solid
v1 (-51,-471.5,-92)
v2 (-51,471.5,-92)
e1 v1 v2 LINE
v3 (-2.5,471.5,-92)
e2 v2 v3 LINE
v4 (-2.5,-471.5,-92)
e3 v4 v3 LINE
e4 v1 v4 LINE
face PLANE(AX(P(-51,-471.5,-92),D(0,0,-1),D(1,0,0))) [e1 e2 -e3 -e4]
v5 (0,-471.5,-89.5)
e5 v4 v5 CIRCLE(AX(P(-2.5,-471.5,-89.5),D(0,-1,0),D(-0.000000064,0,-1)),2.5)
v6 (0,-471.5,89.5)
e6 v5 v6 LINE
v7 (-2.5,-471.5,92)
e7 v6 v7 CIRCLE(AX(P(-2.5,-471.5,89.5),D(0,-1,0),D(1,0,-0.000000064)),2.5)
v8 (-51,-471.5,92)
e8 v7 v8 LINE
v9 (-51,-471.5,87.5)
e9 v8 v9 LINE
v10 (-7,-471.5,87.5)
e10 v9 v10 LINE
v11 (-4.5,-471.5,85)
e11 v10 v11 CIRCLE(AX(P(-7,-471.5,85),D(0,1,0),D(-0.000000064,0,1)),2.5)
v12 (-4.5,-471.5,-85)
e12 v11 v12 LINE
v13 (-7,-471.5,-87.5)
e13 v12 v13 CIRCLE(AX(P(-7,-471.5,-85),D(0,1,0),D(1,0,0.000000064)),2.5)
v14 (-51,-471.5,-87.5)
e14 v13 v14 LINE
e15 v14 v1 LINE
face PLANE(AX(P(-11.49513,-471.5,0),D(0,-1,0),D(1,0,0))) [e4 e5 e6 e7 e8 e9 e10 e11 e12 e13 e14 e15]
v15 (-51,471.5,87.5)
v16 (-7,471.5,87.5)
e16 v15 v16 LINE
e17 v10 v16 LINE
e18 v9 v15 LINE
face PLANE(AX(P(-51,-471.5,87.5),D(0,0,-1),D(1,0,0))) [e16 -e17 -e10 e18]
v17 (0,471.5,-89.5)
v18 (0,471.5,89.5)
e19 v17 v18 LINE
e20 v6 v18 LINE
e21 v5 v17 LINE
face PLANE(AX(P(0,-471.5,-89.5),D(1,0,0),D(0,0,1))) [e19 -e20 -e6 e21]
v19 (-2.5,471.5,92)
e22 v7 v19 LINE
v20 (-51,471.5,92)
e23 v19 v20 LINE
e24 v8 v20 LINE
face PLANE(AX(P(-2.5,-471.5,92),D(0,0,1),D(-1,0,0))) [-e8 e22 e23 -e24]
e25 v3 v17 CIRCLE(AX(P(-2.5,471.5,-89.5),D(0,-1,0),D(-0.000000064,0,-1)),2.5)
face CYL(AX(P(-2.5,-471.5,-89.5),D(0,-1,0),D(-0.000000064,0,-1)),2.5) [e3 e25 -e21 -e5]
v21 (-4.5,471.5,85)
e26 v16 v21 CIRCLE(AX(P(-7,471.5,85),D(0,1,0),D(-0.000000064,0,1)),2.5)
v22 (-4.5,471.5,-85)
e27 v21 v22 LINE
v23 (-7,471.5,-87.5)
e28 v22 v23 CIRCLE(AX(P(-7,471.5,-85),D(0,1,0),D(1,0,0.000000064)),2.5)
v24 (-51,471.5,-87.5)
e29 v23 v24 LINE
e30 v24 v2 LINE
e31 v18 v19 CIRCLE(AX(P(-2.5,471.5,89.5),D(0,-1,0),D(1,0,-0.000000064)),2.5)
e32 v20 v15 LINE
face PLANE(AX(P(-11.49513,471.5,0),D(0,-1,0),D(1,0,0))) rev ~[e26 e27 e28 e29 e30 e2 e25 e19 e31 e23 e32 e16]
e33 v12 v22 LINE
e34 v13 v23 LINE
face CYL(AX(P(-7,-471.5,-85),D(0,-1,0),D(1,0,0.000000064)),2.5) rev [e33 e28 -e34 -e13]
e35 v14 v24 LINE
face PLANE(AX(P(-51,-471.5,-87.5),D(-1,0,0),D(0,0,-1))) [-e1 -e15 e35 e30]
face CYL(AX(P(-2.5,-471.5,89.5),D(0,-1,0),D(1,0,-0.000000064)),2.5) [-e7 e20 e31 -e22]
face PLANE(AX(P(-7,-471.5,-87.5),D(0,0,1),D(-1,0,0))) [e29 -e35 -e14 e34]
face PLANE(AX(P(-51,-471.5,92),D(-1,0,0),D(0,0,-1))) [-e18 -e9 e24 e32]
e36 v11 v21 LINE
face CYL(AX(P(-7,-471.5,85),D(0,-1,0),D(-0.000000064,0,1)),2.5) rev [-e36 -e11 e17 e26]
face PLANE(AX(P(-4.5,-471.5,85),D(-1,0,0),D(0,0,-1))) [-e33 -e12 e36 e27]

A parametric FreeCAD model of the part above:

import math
import FreeCAD as App
import Part
import Sketcher
from FreeCAD import Vector

doc = App.newDocument("Part")
body = doc.addObject("PartDesign::Body", "Body")

# Sketch on XZ plane
sketch1 = body.newObject("Sketcher::SketchObject", "Sketch")
sketch1.AttachmentSupport = (doc.getObject("XZ_Plane"), [""])
sketch1.MapMode = "FlatFace"
sketch1.AttachmentOffset = App.Placement(Vector(0, 0, 471.5), App.Rotation())
sketch1.addGeometry([
    Part.ArcOfCircle(Part.Circle(Vector(-2.5, -89.5, 0), Vector(0, 0, 1), 2.5), math.radians(-90.000004), math.radians(0.000004)),  # 0
    Part.LineSegment(Vector(0, -89.5, 0), Vector(0, 89.5, 0)),  # 1
    Part.ArcOfCircle(Part.Circle(Vector(-2.5, 89.5, 0), Vector(0, 0, 1), 2.5), math.radians(-0.000004), math.radians(90.000004)),  # 2
    Part.LineSegment(Vector(-2.5, 92, 0), Vector(-51, 92, 0)),  # 3
    Part.LineSegment(Vector(-51, 92, 0), Vector(-51, 87.5, 0)),  # 4
    Part.LineSegment(Vector(-51, 87.5, 0), Vector(-7, 87.5, 0)),  # 5
    Part.ArcOfCircle(Part.Circle(Vector(-7, 85, 0), Vector(0, 0, 1), 2.5), math.radians(-0.000004), math.radians(90.000004)),  # 6
    Part.LineSegment(Vector(-4.5, 85, 0), Vector(-4.5, -85, 0)),  # 7
    Part.ArcOfCircle(Part.Circle(Vector(-7, -85, 0), Vector(0, 0, 1), 2.5), math.radians(-90.000004), math.radians(0.000004)),  # 8
    Part.LineSegment(Vector(-7, -87.5, 0), Vector(-51, -87.5, 0)),  # 9
    Part.LineSegment(Vector(-51, -87.5, 0), Vector(-51, -92, 0)),  # 10
    Part.LineSegment(Vector(-51, -92, 0), Vector(-2.5, -92, 0)),  # 11
], False)
sketch1.addConstraint([
    Sketcher.Constraint("Tangent", 0, 2, 1, 1),
    Sketcher.Constraint("Tangent", 1, 2, 2, 1),
    Sketcher.Constraint("Tangent", 2, 2, 3, 1),
    Sketcher.Constraint("Coincident", 3, 2, 4, 1),
    Sketcher.Constraint("Coincident", 4, 2, 5, 1),
    Sketcher.Constraint("Tangent", 5, 2, 6, 2),
    Sketcher.Constraint("Tangent", 6, 1, 7, 1),
    Sketcher.Constraint("Tangent", 7, 2, 8, 2),
    Sketcher.Constraint("Tangent", 8, 1, 9, 1),
    Sketcher.Constraint("Coincident", 9, 2, 10, 1),
    Sketcher.Constraint("Coincident", 10, 2, 11, 1),
    Sketcher.Constraint("Tangent", 11, 2, 0, 1),
    Sketcher.Constraint("Vertical", 1),
    Sketcher.Constraint("Horizontal", 3),
    Sketcher.Constraint("Vertical", 4),
    Sketcher.Constraint("Horizontal", 5),
    Sketcher.Constraint("Vertical", 7),
    Sketcher.Constraint("Horizontal", 9),
    Sketcher.Constraint("Vertical", 10),
    Sketcher.Constraint("Horizontal", 11),
    Sketcher.Constraint("Equal", 0, 2),
    Sketcher.Constraint("Equal", 2, 6),
    Sketcher.Constraint("Equal", 6, 8),
    Sketcher.Constraint("Symmetric", 0, 2, 1, 2, -1, 1),
    Sketcher.Constraint("Symmetric", 4, 2, 9, 2, -1),
    Sketcher.Constraint("Radius", 0, 2.5),
    Sketcher.Constraint("DistanceX", 5, 1, 5, 2, 44.0),
    Sketcher.Constraint("DistanceY", 1, 1, 1, 2, 179.0),
    Sketcher.Constraint("DistanceY", 7, 2, 7, 1, 170.0),
    Sketcher.Constraint("DistanceX", 3, 2, 3, 1, 48.5),
])
pad1 = body.newObject("PartDesign::Pad", "Pad")
pad1.Profile = sketch1
pad1.Length = 943
pad1.Reversed = True

doc.recompute()
